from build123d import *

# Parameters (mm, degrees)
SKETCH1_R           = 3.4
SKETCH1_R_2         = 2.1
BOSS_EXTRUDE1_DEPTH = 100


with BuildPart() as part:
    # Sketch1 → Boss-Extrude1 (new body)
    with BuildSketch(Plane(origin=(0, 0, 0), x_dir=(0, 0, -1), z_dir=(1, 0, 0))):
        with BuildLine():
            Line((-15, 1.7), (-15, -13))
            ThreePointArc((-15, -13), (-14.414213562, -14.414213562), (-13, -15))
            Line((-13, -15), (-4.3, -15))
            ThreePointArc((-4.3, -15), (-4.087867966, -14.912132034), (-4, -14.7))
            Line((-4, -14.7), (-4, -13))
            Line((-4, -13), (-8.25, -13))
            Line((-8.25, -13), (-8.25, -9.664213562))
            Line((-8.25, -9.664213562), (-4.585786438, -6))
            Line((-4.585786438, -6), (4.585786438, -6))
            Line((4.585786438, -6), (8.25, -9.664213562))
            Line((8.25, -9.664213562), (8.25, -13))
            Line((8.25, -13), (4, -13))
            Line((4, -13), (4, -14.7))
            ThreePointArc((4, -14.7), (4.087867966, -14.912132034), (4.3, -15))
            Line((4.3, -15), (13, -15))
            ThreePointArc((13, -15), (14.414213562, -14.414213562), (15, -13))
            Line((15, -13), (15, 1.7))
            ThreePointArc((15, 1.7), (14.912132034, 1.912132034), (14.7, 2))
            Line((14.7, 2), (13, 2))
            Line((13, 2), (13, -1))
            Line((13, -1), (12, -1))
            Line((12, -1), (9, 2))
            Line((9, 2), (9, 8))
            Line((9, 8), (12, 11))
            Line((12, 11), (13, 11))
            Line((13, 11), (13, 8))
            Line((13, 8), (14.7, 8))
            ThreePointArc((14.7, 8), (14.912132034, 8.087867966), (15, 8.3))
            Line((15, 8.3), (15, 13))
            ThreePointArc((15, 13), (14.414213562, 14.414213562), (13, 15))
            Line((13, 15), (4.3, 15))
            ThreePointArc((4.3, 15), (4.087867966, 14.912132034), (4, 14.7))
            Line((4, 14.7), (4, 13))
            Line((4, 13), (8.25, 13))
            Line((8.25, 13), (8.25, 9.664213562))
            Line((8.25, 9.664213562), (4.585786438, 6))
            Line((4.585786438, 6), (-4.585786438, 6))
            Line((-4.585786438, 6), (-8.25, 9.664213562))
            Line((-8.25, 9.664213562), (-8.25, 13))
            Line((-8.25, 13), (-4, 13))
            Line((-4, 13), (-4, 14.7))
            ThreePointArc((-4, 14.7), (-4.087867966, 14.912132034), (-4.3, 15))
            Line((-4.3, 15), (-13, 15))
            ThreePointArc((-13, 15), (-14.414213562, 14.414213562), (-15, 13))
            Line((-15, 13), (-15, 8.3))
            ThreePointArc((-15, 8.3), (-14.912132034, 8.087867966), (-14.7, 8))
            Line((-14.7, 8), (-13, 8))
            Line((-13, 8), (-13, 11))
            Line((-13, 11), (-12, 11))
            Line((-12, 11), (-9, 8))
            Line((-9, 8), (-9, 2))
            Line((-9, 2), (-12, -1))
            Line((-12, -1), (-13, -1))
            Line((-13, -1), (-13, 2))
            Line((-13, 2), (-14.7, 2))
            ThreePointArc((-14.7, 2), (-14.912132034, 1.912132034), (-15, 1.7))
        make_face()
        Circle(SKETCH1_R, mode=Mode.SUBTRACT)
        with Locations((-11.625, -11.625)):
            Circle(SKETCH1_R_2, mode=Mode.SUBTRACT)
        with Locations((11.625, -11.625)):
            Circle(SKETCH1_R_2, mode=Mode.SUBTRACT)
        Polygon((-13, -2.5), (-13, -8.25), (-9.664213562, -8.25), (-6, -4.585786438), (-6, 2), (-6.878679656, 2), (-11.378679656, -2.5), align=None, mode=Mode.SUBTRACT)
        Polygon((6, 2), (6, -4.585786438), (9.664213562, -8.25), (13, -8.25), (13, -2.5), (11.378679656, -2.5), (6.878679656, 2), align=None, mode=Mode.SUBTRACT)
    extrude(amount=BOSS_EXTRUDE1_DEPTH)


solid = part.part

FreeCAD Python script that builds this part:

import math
import FreeCAD as App
import Part
import Sketcher

doc = App.newDocument("Part")
body = doc.addObject("PartDesign::Body", "Body")

# Sketch on YZ plane
sketch1 = doc.addObject("Sketcher::SketchObject", "Sketch")
body.addObject(sketch1)
sketch1.AttachmentSupport = (doc.YZ_Plane, [""])
sketch1.MapMode = "FlatFace"
sketch1.addGeometry(Part.LineSegment(App.Vector(1.7, 15, 0), App.Vector(-13, 15, 0)), False)
sketch1.addGeometry(Part.ArcOfCircle(Part.Circle(App.Vector(-13, 13, 0), App.Vector(0, 0, 1), 2), math.radians(90), math.radians(180)), False)
sketch1.addGeometry(Part.LineSegment(App.Vector(-15, 13, 0), App.Vector(-15, 4.3, 0)), False)
sketch1.addGeometry(Part.ArcOfCircle(Part.Circle(App.Vector(-14.7, 4.3, 0), App.Vector(0, 0, 1), 0.3), math.radians(-180), math.radians(-90)), False)
sketch1.addGeometry(Part.LineSegment(App.Vector(-14.7, 4, 0), App.Vector(-13, 4, 0)), False)
sketch1.addGeometry(Part.LineSegment(App.Vector(-13, 4, 0), App.Vector(-13, 8.25, 0)), False)
sketch1.addGeometry(Part.LineSegment(App.Vector(-13, 8.25, 0), App.Vector(-9.66, 8.25, 0)), False)
sketch1.addGeometry(Part.LineSegment(App.Vector(-9.66, 8.25, 0), App.Vector(-6, 4.59, 0)), False)
sketch1.addGeometry(Part.LineSegment(App.Vector(-6, 4.59, 0), App.Vector(-6, -4.59, 0)), False)
sketch1.addGeometry(Part.LineSegment(App.Vector(-6, -4.59, 0), App.Vector(-9.66, -8.25, 0)), False)
sketch1.addGeometry(Part.LineSegment(App.Vector(-9.66, -8.25, 0), App.Vector(-13, -8.25, 0)), False)
sketch1.addGeometry(Part.LineSegment(App.Vector(-13, -8.25, 0), App.Vector(-13, -4, 0)), False)
sketch1.addGeometry(Part.LineSegment(App.Vector(-13, -4, 0), App.Vector(-14.7, -4, 0)), False)
sketch1.addGeometry(Part.ArcOfCircle(Part.Circle(App.Vector(-14.7, -4.3, 0), App.Vector(0, 0, 1), 0.3), math.radians(90), math.radians(180)), False)
sketch1.addGeometry(Part.LineSegment(App.Vector(-15, -4.3, 0), App.Vector(-15, -13, 0)), False)
sketch1.addGeometry(Part.ArcOfCircle(Part.Circle(App.Vector(-13, -13, 0), App.Vector(0, 0, 1), 2), math.radians(-180), math.radians(-90)), False)
sketch1.addGeometry(Part.LineSegment(App.Vector(-13, -15, 0), App.Vector(1.7, -15, 0)), False)
sketch1.addGeometry(Part.ArcOfCircle(Part.Circle(App.Vector(1.7, -14.7, 0), App.Vector(0, 0, 1), 0.3), math.radians(-90), math.radians(0)), False)
sketch1.addGeometry(Part.LineSegment(App.Vector(2, -14.7, 0), App.Vector(2, -13, 0)), False)
sketch1.addGeometry(Part.LineSegment(App.Vector(2, -13, 0), App.Vector(-1, -13, 0)), False)
sketch1.addGeometry(Part.LineSegment(App.Vector(-1, -13, 0), App.Vector(-1, -12, 0)), False)
sketch1.addGeometry(Part.LineSegment(App.Vector(-1, -12, 0), App.Vector(2, -9, 0)), False)
sketch1.addGeometry(Part.LineSegment(App.Vector(2, -9, 0), App.Vector(8, -9, 0)), False)
sketch1.addGeometry(Part.LineSegment(App.Vector(8, -9, 0), App.Vector(11, -12, 0)), False)
sketch1.addGeometry(Part.LineSegment(App.Vector(11, -12, 0), App.Vector(11, -13, 0)), False)
sketch1.addGeometry(Part.LineSegment(App.Vector(11, -13, 0), App.Vector(8, -13, 0)), False)
sketch1.addGeometry(Part.LineSegment(App.Vector(8, -13, 0), App.Vector(8, -14.7, 0)), False)
sketch1.addGeometry(Part.ArcOfCircle(Part.Circle(App.Vector(8.3, -14.7, 0), App.Vector(0, 0, 1), 0.3), math.radians(-180), math.radians(-90)), False)
sketch1.addGeometry(Part.LineSegment(App.Vector(8.3, -15, 0), App.Vector(13, -15, 0)), False)
sketch1.addGeometry(Part.ArcOfCircle(Part.Circle(App.Vector(13, -13, 0), App.Vector(0, 0, 1), 2), math.radians(-90), math.radians(0)), False)
sketch1.addGeometry(Part.LineSegment(App.Vector(15, -13, 0), App.Vector(15, -4.3, 0)), False)
sketch1.addGeometry(Part.ArcOfCircle(Part.Circle(App.Vector(14.7, -4.3, 0), App.Vector(0, 0, 1), 0.3), math.radians(0), math.radians(90)), False)
sketch1.addGeometry(Part.LineSegment(App.Vector(14.7, -4, 0), App.Vector(13, -4, 0)), False)
sketch1.addGeometry(Part.LineSegment(App.Vector(13, -4, 0), App.Vector(13, -8.25, 0)), False)
sketch1.addGeometry(Part.LineSegment(App.Vector(13, -8.25, 0), App.Vector(9.66, -8.25, 0)), False)
sketch1.addGeometry(Part.LineSegment(App.Vector(9.66, -8.25, 0), App.Vector(6, -4.59, 0)), False)
sketch1.addGeometry(Part.LineSegment(App.Vector(6, -4.59, 0), App.Vector(6, 4.59, 0)), False)
sketch1.addGeometry(Part.LineSegment(App.Vector(6, 4.59, 0), App.Vector(9.66, 8.25, 0)), False)
sketch1.addGeometry(Part.LineSegment(App.Vector(9.66, 8.25, 0), App.Vector(13, 8.25, 0)), False)
sketch1.addGeometry(Part.LineSegment(App.Vector(13, 8.25, 0), App.Vector(13, 4, 0)), False)
sketch1.addGeometry(Part.LineSegment(App.Vector(13, 4, 0), App.Vector(14.7, 4, 0)), False)
sketch1.addGeometry(Part.ArcOfCircle(Part.Circle(App.Vector(14.7, 4.3, 0), App.Vector(0, 0, 1), 0.3), math.radians(-90), math.radians(0)), False)
sketch1.addGeometry(Part.LineSegment(App.Vector(15, 4.3, 0), App.Vector(15, 13, 0)), False)
sketch1.addGeometry(Part.ArcOfCircle(Part.Circle(App.Vector(13, 13, 0), App.Vector(0, 0, 1), 2), math.radians(0), math.radians(90)), False)
sketch1.addGeometry(Part.LineSegment(App.Vector(13, 15, 0), App.Vector(8.3, 15, 0)), False)
sketch1.addGeometry(Part.ArcOfCircle(Part.Circle(App.Vector(8.3, 14.7, 0), App.Vector(0, 0, 1), 0.3), math.radians(90), math.radians(180)), False)
sketch1.addGeometry(Part.LineSegment(App.Vector(8, 14.7, 0), App.Vector(8, 13, 0)), False)
sketch1.addGeometry(Part.LineSegment(App.Vector(8, 13, 0), App.Vector(11, 13, 0)), False)
sketch1.addGeometry(Part.LineSegment(App.Vector(11, 13, 0), App.Vector(11, 12, 0)), False)
sketch1.addGeometry(Part.LineSegment(App.Vector(11, 12, 0), App.Vector(8, 9, 0)), False)
sketch1.addGeometry(Part.LineSegment(App.Vector(8, 9, 0), App.Vector(2, 9, 0)), False)
sketch1.addGeometry(Part.LineSegment(App.Vector(2, 9, 0), App.Vector(-1, 12, 0)), False)
sketch1.addGeometry(Part.LineSegment(App.Vector(-1, 12, 0), App.Vector(-1, 13, 0)), False)
sketch1.addGeometry(Part.LineSegment(App.Vector(-1, 13, 0), App.Vector(2, 13, 0)), False)
sketch1.addGeometry(Part.LineSegment(App.Vector(2, 13, 0), App.Vector(2, 14.7, 0)), False)
sketch1.addGeometry(Part.ArcOfCircle(Part.Circle(App.Vector(1.7, 14.7, 0), App.Vector(0, 0, 1), 0.3), math.radians(0), math.radians(90)), False)
sketch1.addGeometry(Part.Circle(App.Vector(-11.62, 11.62, 0), App.Vector(0, 0, 1), 2.1), False)
sketch1.addGeometry(Part.Circle(App.Vector(-11.62, -11.62, 0), App.Vector(0, 0, 1), 2.1), False)
sketch1.addGeometry(Part.LineSegment(App.Vector(-8.25, 13, 0), App.Vector(-2.5, 13, 0)), False)
sketch1.addGeometry(Part.LineSegment(App.Vector(-2.5, 13, 0), App.Vector(-2.5, 11.38, 0)), False)
sketch1.addGeometry(Part.LineSegment(App.Vector(-2.5, 11.38, 0), App.Vector(2, 6.88, 0)), False)
sketch1.addGeometry(Part.LineSegment(App.Vector(2, 6.88, 0), App.Vector(2, 6, 0)), False)
sketch1.addGeometry(Part.LineSegment(App.Vector(2, 6, 0), App.Vector(-4.59, 6, 0)), False)
sketch1.addGeometry(Part.LineSegment(App.Vector(-4.59, 6, 0), App.Vector(-8.25, 9.66, 0)), False)
sketch1.addGeometry(Part.LineSegment(App.Vector(-8.25, 9.66, 0), App.Vector(-8.25, 13, 0)), False)
sketch1.addGeometry(Part.LineSegment(App.Vector(-4.59, -6, 0), App.Vector(2, -6, 0)), False)
sketch1.addGeometry(Part.LineSegment(App.Vector(2, -6, 0), App.Vector(2, -6.88, 0)), False)
sketch1.addGeometry(Part.LineSegment(App.Vector(2, -6.88, 0), App.Vector(-2.5, -11.38, 0)), False)
sketch1.addGeometry(Part.LineSegment(App.Vector(-2.5, -11.38, 0), App.Vector(-2.5, -13, 0)), False)
sketch1.addGeometry(Part.LineSegment(App.Vector(-2.5, -13, 0), App.Vector(-8.25, -13, 0)), False)
sketch1.addGeometry(Part.LineSegment(App.Vector(-8.25, -13, 0), App.Vector(-8.25, -9.66, 0)), False)
sketch1.addGeometry(Part.LineSegment(App.Vector(-8.25, -9.66, 0), App.Vector(-4.59, -6, 0)), False)
sketch1.addGeometry(Part.Circle(App.Vector(0, 0, 0), App.Vector(0, 0, 1), 3.4), False)
sketch1.addConstraint(Sketcher.Constraint("Tangent", 0, 2, 1, 1))
sketch1.addConstraint(Sketcher.Constraint("Tangent", 1, 2, 2, 1))
sketch1.addConstraint(Sketcher.Constraint("Tangent", 2, 2, 3, 1))
sketch1.addConstraint(Sketcher.Constraint("Tangent", 3, 2, 4, 1))
sketch1.addConstraint(Sketcher.Constraint("Coincident", 4, 2, 5, 1))
sketch1.addConstraint(Sketcher.Constraint("Coincident", 5, 2, 6, 1))
sketch1.addConstraint(Sketcher.Constraint("Coincident", 6, 2, 7, 1))
sketch1.addConstraint(Sketcher.Constraint("Coincident", 7, 2, 8, 1))
sketch1.addConstraint(Sketcher.Constraint("Coincident", 8, 2, 9, 1))
sketch1.addConstraint(Sketcher.Constraint("Coincident", 9, 2, 10, 1))
sketch1.addConstraint(Sketcher.Constraint("Coincident", 10, 2, 11, 1))
sketch1.addConstraint(Sketcher.Constraint("Coincident", 11, 2, 12, 1))
sketch1.addConstraint(Sketcher.Constraint("Tangent", 12, 2, 13, 1))
sketch1.addConstraint(Sketcher.Constraint("Tangent", 13, 2, 14, 1))
sketch1.addConstraint(Sketcher.Constraint("Tangent", 14, 2, 15, 1))
sketch1.addConstraint(Sketcher.Constraint("Tangent", 15, 2, 16, 1))
sketch1.addConstraint(Sketcher.Constraint("Tangent", 16, 2, 17, 1))
sketch1.addConstraint(Sketcher.Constraint("Tangent", 17, 2, 18, 1))
sketch1.addConstraint(Sketcher.Constraint("Coincident", 18, 2, 19, 1))
sketch1.addConstraint(Sketcher.Constraint("Coincident", 19, 2, 20, 1))
sketch1.addConstraint(Sketcher.Constraint("Coincident", 20, 2, 21, 1))
sketch1.addConstraint(Sketcher.Constraint("Coincident", 21, 2, 22, 1))
sketch1.addConstraint(Sketcher.Constraint("Coincident", 22, 2, 23, 1))
sketch1.addConstraint(Sketcher.Constraint("Coincident", 23, 2, 24, 1))
sketch1.addConstraint(Sketcher.Constraint("Coincident", 24, 2, 25, 1))
sketch1.addConstraint(Sketcher.Constraint("Coincident", 25, 2, 26, 1))
sketch1.addConstraint(Sketcher.Constraint("Tangent", 26, 2, 27, 1))
sketch1.addConstraint(Sketcher.Constraint("Tangent", 27, 2, 28, 1))
sketch1.addConstraint(Sketcher.Constraint("Tangent", 28, 2, 29, 1))
sketch1.addConstraint(Sketcher.Constraint("Tangent", 29, 2, 30, 1))
sketch1.addConstraint(Sketcher.Constraint("Tangent", 30, 2, 31, 1))
sketch1.addConstraint(Sketcher.Constraint("Tangent", 31, 2, 32, 1))
sketch1.addConstraint(Sketcher.Constraint("Coincident", 32, 2, 33, 1))
sketch1.addConstraint(Sketcher.Constraint("Coincident", 33, 2, 34, 1))
sketch1.addConstraint(Sketcher.Constraint("Coincident", 34, 2, 35, 1))
sketch1.addConstraint(Sketcher.Constraint("Coincident", 35, 2, 36, 1))
sketch1.addConstraint(Sketcher.Constraint("Coincident", 36, 2, 37, 1))
sketch1.addConstraint(Sketcher.Constraint("Coincident", 37, 2, 38, 1))
sketch1.addConstraint(Sketcher.Constraint("Coincident", 38, 2, 39, 1))
sketch1.addConstraint(Sketcher.Constraint("Coincident", 39, 2, 40, 1))
sketch1.addConstraint(Sketcher.Constraint("Tangent", 40, 2, 41, 1))
sketch1.addConstraint(Sketcher.Constraint("Tangent", 41, 2, 42, 1))
sketch1.addConstraint(Sketcher.Constraint("Tangent", 42, 2, 43, 1))
sketch1.addConstraint(Sketcher.Constraint("Tangent", 43, 2, 44, 1))
sketch1.addConstraint(Sketcher.Constraint("Tangent", 44, 2, 45, 1))
sketch1.addConstraint(Sketcher.Constraint("Tangent", 45, 2, 46, 1))
sketch1.addConstraint(Sketcher.Constraint("Coincident", 46, 2, 47, 1))
sketch1.addConstraint(Sketcher.Constraint("Coincident", 47, 2, 48, 1))
sketch1.addConstraint(Sketcher.Constraint("Coincident", 48, 2, 49, 1))
sketch1.addConstraint(Sketcher.Constraint("Coincident", 49, 2, 50, 1))
sketch1.addConstraint(Sketcher.Constraint("Coincident", 50, 2, 51, 1))
sketch1.addConstraint(Sketcher.Constraint("Coincident", 51, 2, 52, 1))
sketch1.addConstraint(Sketcher.Constraint("Coincident", 52, 2, 53, 1))
sketch1.addConstraint(Sketcher.Constraint("Coincident", 53, 2, 54, 1))
sketch1.addConstraint(Sketcher.Constraint("Tangent", 54, 2, 55, 1))
sketch1.addConstraint(Sketcher.Constraint("Tangent", 55, 2, 0, 1))
sketch1.addConstraint(Sketcher.Constraint("Coincident", 58, 2, 59, 1))
sketch1.addConstraint(Sketcher.Constraint("Coincident", 59, 2, 60, 1))
sketch1.addConstraint(Sketcher.Constraint("Coincident", 60, 2, 61, 1))
sketch1.addConstraint(Sketcher.Constraint("Coincident", 61, 2, 62, 1))
sketch1.addConstraint(Sketcher.Constraint("Coincident", 62, 2, 63, 1))
sketch1.addConstraint(Sketcher.Constraint("Coincident", 63, 2, 64, 1))
sketch1.addConstraint(Sketcher.Constraint("Coincident", 64, 2, 58, 1))
sketch1.addConstraint(Sketcher.Constraint("Coincident", 65, 2, 66, 1))
sketch1.addConstraint(Sketcher.Constraint("Coincident", 66, 2, 67, 1))
sketch1.addConstraint(Sketcher.Constraint("Coincident", 67, 2, 68, 1))
sketch1.addConstraint(Sketcher.Constraint("Coincident", 68, 2, 69, 1))
sketch1.addConstraint(Sketcher.Constraint("Coincident", 69, 2, 70, 1))
sketch1.addConstraint(Sketcher.Constraint("Coincident", 70, 2, 71, 1))
sketch1.addConstraint(Sketcher.Constraint("Coincident", 71, 2, 65, 1))
sketch1.addConstraint(Sketcher.Constraint("Horizontal", 0))
sketch1.addConstraint(Sketcher.Constraint("Vertical", 2))
sketch1.addConstraint(Sketcher.Constraint("Horizontal", 4))
sketch1.addConstraint(Sketcher.Constraint("Vertical", 5))
sketch1.addConstraint(Sketcher.Constraint("Horizontal", 6))
sketch1.addConstraint(Sketcher.Constraint("Vertical", 8))
sketch1.addConstraint(Sketcher.Constraint("Horizontal", 10))
sketch1.addConstraint(Sketcher.Constraint("Vertical", 11))
sketch1.addConstraint(Sketcher.Constraint("Horizontal", 12))
sketch1.addConstraint(Sketcher.Constraint("Vertical", 14))
sketch1.addConstraint(Sketcher.Constraint("Horizontal", 16))
sketch1.addConstraint(Sketcher.Constraint("Vertical", 18))
sketch1.addConstraint(Sketcher.Constraint("Horizontal", 19))
sketch1.addConstraint(Sketcher.Constraint("Vertical", 20))
sketch1.addConstraint(Sketcher.Constraint("Horizontal", 22))
sketch1.addConstraint(Sketcher.Constraint("Vertical", 24))
sketch1.addConstraint(Sketcher.Constraint("Horizontal", 25))
sketch1.addConstraint(Sketcher.Constraint("Vertical", 26))
sketch1.addConstraint(Sketcher.Constraint("Horizontal", 28))
sketch1.addConstraint(Sketcher.Constraint("Vertical", 30))
sketch1.addConstraint(Sketcher.Constraint("Horizontal", 32))
sketch1.addConstraint(Sketcher.Constraint("Vertical", 33))
sketch1.addConstraint(Sketcher.Constraint("Horizontal", 34))
sketch1.addConstraint(Sketcher.Constraint("Vertical", 36))
sketch1.addConstraint(Sketcher.Constraint("Horizontal", 38))
sketch1.addConstraint(Sketcher.Constraint("Vertical", 39))
sketch1.addConstraint(Sketcher.Constraint("Horizontal", 40))
sketch1.addConstraint(Sketcher.Constraint("Vertical", 42))
sketch1.addConstraint(Sketcher.Constraint("Horizontal", 44))
sketch1.addConstraint(Sketcher.Constraint("Vertical", 46))
sketch1.addConstraint(Sketcher.Constraint("Horizontal", 47))
sketch1.addConstraint(Sketcher.Constraint("Vertical", 48))
sketch1.addConstraint(Sketcher.Constraint("Horizontal", 50))
sketch1.addConstraint(Sketcher.Constraint("Vertical", 52))
sketch1.addConstraint(Sketcher.Constraint("Horizontal", 53))
sketch1.addConstraint(Sketcher.Constraint("Vertical", 54))
sketch1.addConstraint(Sketcher.Constraint("Horizontal", 58))
sketch1.addConstraint(Sketcher.Constraint("Vertical", 59))
sketch1.addConstraint(Sketcher.Constraint("Vertical", 61))
sketch1.addConstraint(Sketcher.Constraint("Horizontal", 62))
sketch1.addConstraint(Sketcher.Constraint("Vertical", 64))
sketch1.addConstraint(Sketcher.Constraint("Horizontal", 65))
sketch1.addConstraint(Sketcher.Constraint("Vertical", 66))
sketch1.addConstraint(Sketcher.Constraint("Vertical", 68))
sketch1.addConstraint(Sketcher.Constraint("Horizontal", 69))
sketch1.addConstraint(Sketcher.Constraint("Vertical", 70))
sketch1.addConstraint(Sketcher.Constraint("Coincident", 72, 3, -1, 1))
sketch1.addConstraint(Sketcher.Constraint("Equal", 3, 13))
sketch1.addConstraint(Sketcher.Constraint("Equal", 1, 15))
sketch1.addConstraint(Sketcher.Constraint("Equal", 13, 17))
sketch1.addConstraint(Sketcher.Constraint("Equal", 17, 27))
sketch1.addConstraint(Sketcher.Constraint("Equal", 15, 29))
sketch1.addConstraint(Sketcher.Constraint("Equal", 27, 31))
sketch1.addConstraint(Sketcher.Constraint("Equal", 31, 41))
sketch1.addConstraint(Sketcher.Constraint("Equal", 29, 43))
sketch1.addConstraint(Sketcher.Constraint("Equal", 41, 45))
sketch1.addConstraint(Sketcher.Constraint("Equal", 45, 55))
sketch1.addConstraint(Sketcher.Constraint("Equal", 56, 57))
sketch1.addConstraint(Sketcher.Constraint("Symmetric", 1, 3, 29, 3, -1, 1))
sketch1.addConstraint(Sketcher.Constraint("Symmetric", 13, 3, 41, 3, -1, 1))
sketch1.addConstraint(Sketcher.Constraint("Symmetric", 4, 2, 32, 2, -1, 1))
sketch1.addConstraint(Sketcher.Constraint("Symmetric", 6, 2, 34, 2, -1, 1))
sketch1.addConstraint(Sketcher.Constraint("Symmetric", 7, 2, 35, 2, -1, 1))
sketch1.addConstraint(Sketcher.Constraint("Symmetric", 9, 2, 37, 2, -1, 1))
sketch1.addConstraint(Sketcher.Constraint("Symmetric", 15, 3, 29, 3, -2))
sketch1.addConstraint(Sketcher.Constraint("Symmetric", 11, 2, 32, 2, -2))
sketch1.addConstraint(Sketcher.Constraint("Symmetric", 9, 2, 34, 2, -2))
sketch1.addConstraint(Sketcher.Constraint("Symmetric", 27, 3, 45, 3, -1))
sketch1.addConstraint(Sketcher.Constraint("Symmetric", 56, 3, 57, 3, -1))
sketch1.addConstraint(Sketcher.Constraint("Symmetric", 24, 2, 47, 2, -1))
sketch1.addConstraint(Sketcher.Constraint("Symmetric", 22, 2, 49, 2, -1))
sketch1.addConstraint(Sketcher.Constraint("Symmetric", 20, 2, 51, 2, -1))
sketch1.addConstraint(Sketcher.Constraint("Symmetric", 18, 2, 53, 2, -1))
sketch1.addConstraint(Sketcher.Constraint("Symmetric", 61, 2, 65, 2, -1))
sketch1.addConstraint(Sketcher.Constraint("Symmetric", 59, 2, 67, 2, -1))
sketch1.addConstraint(Sketcher.Constraint("Symmetric", 64, 2, 69, 2, -1))
sketch1.addConstraint(Sketcher.Constraint("Perpendicular", 7, 9))
sketch1.addConstraint(Sketcher.Constraint("Parallel", 9, 21))
sketch1.addConstraint(Sketcher.Constraint("Perpendicular", 21, 23))
sketch1.addConstraint(Sketcher.Constraint("Perpendicular", 35, 37))
sketch1.addConstraint(Sketcher.Constraint("Parallel", 37, 49))
sketch1.addConstraint(Sketcher.Constraint("Perpendicular", 49, 51))
sketch1.addConstraint(Sketcher.Constraint("Parallel", 51, 60))
sketch1.addConstraint(Sketcher.Constraint("Parallel", 60, 63))
sketch1.addConstraint(Sketcher.Constraint("Perpendicular", 63, 67))
sketch1.addConstraint(Sketcher.Constraint("Parallel", 67, 71))
sketch1.addConstraint(Sketcher.Constraint("Horizontal", 14, 2, 18, 2))
sketch1.addConstraint(Sketcher.Constraint("Horizontal", 20, 2, 23, 2))
sketch1.addConstraint(Sketcher.Constraint("Horizontal", 19, 2, 24, 2))
sketch1.addConstraint(Sketcher.Constraint("Horizontal", 8, 2, 35, 2))
sketch1.addConstraint(Sketcher.Constraint("Horizontal", 53, 2, 58, 2))
sketch1.addConstraint(Sketcher.Constraint("Vertical", 0, 2, 4, 2))
sketch1.addConstraint(Sketcher.Constraint("Vertical", 18, 2, 21, 2))
sketch1.addConstraint(Sketcher.Constraint("Vertical", 22, 2, 25, 2))
sketch1.addConstraint(Sketcher.Constraint("Vertical", 33, 2, 38, 2))
sketch1.addConstraint(Sketcher.Constraint("Vertical", 54, 2, 60, 2))
sketch1.addConstraint(Sketcher.Constraint("Vertical", 62, 2, 71, 2))
sketch1.addConstraint(Sketcher.Constraint("Equal", 38, 64))
sketch1.addConstraint(Sketcher.Constraint("Equal", 37, 63))
sketch1.addConstraint(Sketcher.Constraint("Radius", 1, 2.0))
sketch1.addConstraint(Sketcher.Constraint("Diameter", 56, 4.2))
sketch1.addConstraint(Sketcher.Constraint("Diameter", 72, 6.8))
sketch1.addConstraint(Sketcher.Constraint("Radius", 3, 0.3))
sketch1.addConstraint(Sketcher.Constraint("DistanceX", 19, 2, 19, 1, 3.0))
sketch1.addConstraint(Sketcher.Constraint("DistanceX", 22, 1, 22, 2, 6.0))
sketch1.addConstraint(Sketcher.Constraint("DistanceY", 20, 1, 20, 2, 1.0))
sketch1.addConstraint(Sketcher.Constraint("DistanceX", 0, 2, 0, 1, 14.7))
sketch1.addConstraint(Sketcher.Constraint("DistanceX", 28, 1, 28, 2, 4.7))
sketch1.addConstraint(Sketcher.Constraint("DistanceY", 2, 2, 2, 1, 8.7))
sketch1.addConstraint(Sketcher.Constraint("DistanceY", -1, 1, 1, 3, 13.0))
sketch1.addConstraint(Sketcher.Constraint("DistanceX", 7, 2, -1, 1, 6.0))
sketch1.addConstraint(Sketcher.Constraint("DistanceX", 58, 1, 58, 2, 5.75))
sketch1.addConstraint(Sketcher.Constraint("DistanceY", 5, 1, 5, 2, 4.25))
sketch1.addConstraint(Sketcher.Constraint("DistanceX", 58, 2, -1, 1, 2.5))
sketch1.addConstraint(Sketcher.Constraint("DistanceX", 56, 3, -1, 1, 11.625))
sketch1.addConstraint(Sketcher.Constraint("DistanceY", -1, 1, 56, 3, 11.625))
sketch1.addConstraint(Sketcher.Constraint("DistanceY", 59, 2, 59, 1, 1.62132))
sketch1.addConstraint(Sketcher.Constraint("Distance", 7, 5.181981))
pad1 = doc.addObject("PartDesign::Pad", "Pad")
body.addObject(pad1)
pad1.Profile = sketch1
pad1.Length = 100

doc.recompute()
